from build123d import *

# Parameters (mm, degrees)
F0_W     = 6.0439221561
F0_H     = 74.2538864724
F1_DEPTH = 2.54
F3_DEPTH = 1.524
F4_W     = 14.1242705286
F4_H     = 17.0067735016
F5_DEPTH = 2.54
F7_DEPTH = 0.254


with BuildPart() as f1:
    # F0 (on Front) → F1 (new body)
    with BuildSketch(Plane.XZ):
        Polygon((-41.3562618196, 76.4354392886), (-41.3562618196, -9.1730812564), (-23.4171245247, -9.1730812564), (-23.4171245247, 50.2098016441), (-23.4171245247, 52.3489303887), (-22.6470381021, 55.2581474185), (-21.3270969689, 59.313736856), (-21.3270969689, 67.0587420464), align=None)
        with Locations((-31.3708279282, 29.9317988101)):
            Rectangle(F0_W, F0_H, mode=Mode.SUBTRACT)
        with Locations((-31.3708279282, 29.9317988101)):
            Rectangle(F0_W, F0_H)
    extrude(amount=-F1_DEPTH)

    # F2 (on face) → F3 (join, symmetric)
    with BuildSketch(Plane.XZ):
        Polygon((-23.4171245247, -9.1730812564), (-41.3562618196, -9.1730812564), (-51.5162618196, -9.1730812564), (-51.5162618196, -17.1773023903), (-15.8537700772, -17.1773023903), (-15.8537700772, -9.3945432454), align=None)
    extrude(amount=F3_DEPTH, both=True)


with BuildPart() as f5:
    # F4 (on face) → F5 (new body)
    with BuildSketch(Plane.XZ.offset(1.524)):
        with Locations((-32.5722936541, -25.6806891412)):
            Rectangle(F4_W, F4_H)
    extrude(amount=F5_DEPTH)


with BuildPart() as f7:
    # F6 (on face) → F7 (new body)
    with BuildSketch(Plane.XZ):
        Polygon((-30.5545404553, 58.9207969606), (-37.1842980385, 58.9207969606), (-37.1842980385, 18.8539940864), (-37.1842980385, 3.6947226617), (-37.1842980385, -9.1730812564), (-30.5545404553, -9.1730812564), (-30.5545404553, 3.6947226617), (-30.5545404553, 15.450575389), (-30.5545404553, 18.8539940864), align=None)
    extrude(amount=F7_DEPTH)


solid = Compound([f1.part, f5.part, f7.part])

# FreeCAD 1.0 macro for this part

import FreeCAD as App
import Part
import Sketcher
Q = App.Units.Quantity

doc = App.newDocument("Part")
body = doc.addObject("PartDesign::Body", "Body")

# Sketch on XZ plane
sketch1 = body.newObject("Sketcher::SketchObject", "Sketch")
sketch1.AttachmentSupport = (doc.getObject("XZ_Plane"), [""])
sketch1.MapMode = "FlatFace"
sketch1.addGeometry([
    Part.LineSegment(App.Vector(-41.4, 76.4, 0), App.Vector(-41.4, -9.2, 0)),  # 0
    Part.LineSegment(App.Vector(-41.4, -9.2, 0), App.Vector(-23.4, -9.2, 0)),  # 1
    Part.LineSegment(App.Vector(-23.4, -9.2, 0), App.Vector(-23.4, 52.3, 0)),  # 2
    Part.LineSegment(App.Vector(-23.4, 52.3, 0), App.Vector(-22.6, 55.3, 0)),  # 3
    Part.LineSegment(App.Vector(-22.6, 55.3, 0), App.Vector(-21.3, 59.3, 0)),  # 4
    Part.LineSegment(App.Vector(-21.3, 59.3, 0), App.Vector(-21.3, 67.1, 0)),  # 5
    Part.LineSegment(App.Vector(-21.3, 67.1, 0), App.Vector(-41.4, 76.4, 0)),  # 6
], False)
sketch1.addConstraint([
    Sketcher.Constraint("Coincident", 0, 2, 1, 1),
    Sketcher.Constraint("Coincident", 1, 2, 2, 1),
    Sketcher.Constraint("Coincident", 2, 2, 3, 1),
    Sketcher.Constraint("Coincident", 3, 2, 4, 1),
    Sketcher.Constraint("Coincident", 4, 2, 5, 1),
    Sketcher.Constraint("Coincident", 5, 2, 6, 1),
    Sketcher.Constraint("Coincident", 6, 2, 0, 1),
    Sketcher.Constraint("Vertical", 0),
    Sketcher.Constraint("Horizontal", 1),
    Sketcher.Constraint("Vertical", 2),
    Sketcher.Constraint("Vertical", 5),
    Sketcher.Constraint("DistanceY", 0, 2, 0, 1, Q("85.608521 mm")),
    Sketcher.Constraint("DistanceY", 2, 1, 2, 2, Q("61.522012 mm")),
    Sketcher.Constraint("Distance", 4, Q("4.26498 mm")),
    Sketcher.Constraint("DistanceX", 1, 1, 1, 2, Q("17.939137 mm")),
    Sketcher.Constraint("DistanceY", 5, 1, 5, 2, Q("7.745005 mm")),
    Sketcher.Constraint("DistanceX", 0, 2, -1, 1, Q("41.356262 mm")),
    Sketcher.Constraint("DistanceY", 0, 2, -1, 1, Q("9.173081 mm")),
    Sketcher.Constraint("DistanceX", 3, 2, -1, 1, Q("22.647038 mm")),
    Sketcher.Constraint("DistanceY", 1, 2, 3, 2, Q("64.431229 mm")),
    Sketcher.Constraint("DistanceX", 3, 2, 4, 2, Q("1.319941 mm")),
])
pad1 = body.newObject("PartDesign::Pad", "Pad")
pad1.Profile = sketch1
pad1.Length = Q("0.1 in")
pad1.Reversed = True

# Sketch on XZ plane
sketch2 = body.newObject("Sketcher::SketchObject", "Sketch001")
sketch2.AttachmentSupport = (doc.getObject("XZ_Plane"), [""])
sketch2.MapMode = "FlatFace"
sketch2.addGeometry([
    Part.LineSegment(App.Vector(-23, -9, 0), App.Vector(-52, -9, 0)),  # 0
    Part.LineSegment(App.Vector(-52, -9, 0), App.Vector(-52, -17, 0)),  # 1
    Part.LineSegment(App.Vector(-52, -17, 0), App.Vector(-16, -17, 0)),  # 2
    Part.LineSegment(App.Vector(-16, -17, 0), App.Vector(-16, -9, 0)),  # 3
    Part.LineSegment(App.Vector(-16, -9, 0), App.Vector(-23, -9, 0)),  # 4
], False)
sketch2.addConstraint([
    Sketcher.Constraint("Coincident", 0, 2, 1, 1),
    Sketcher.Constraint("Coincident", 1, 2, 2, 1),
    Sketcher.Constraint("Coincident", 2, 2, 3, 1),
    Sketcher.Constraint("Coincident", 3, 2, 4, 1),
    Sketcher.Constraint("Coincident", 4, 2, 0, 1),
    Sketcher.Constraint("Horizontal", 0),
    Sketcher.Constraint("Vertical", 1),
    Sketcher.Constraint("Horizontal", 2),
    Sketcher.Constraint("Vertical", 3),
    Sketcher.Constraint("DistanceX", 2, 1, 2, 2, Q("35.662492 mm")),
    Sketcher.Constraint("DistanceY", 1, 2, 1, 1, Q("8.004221 mm")),
    Sketcher.Constraint("DistanceY", 3, 1, 3, 2, Q("7.782759 mm")),
    Sketcher.Constraint("DistanceX", 0, 2, 0, 1, Q("28.099137 mm")),
    Sketcher.Constraint("DistanceX", 0, 2, -1, 1, Q("51.516262 mm")),
    Sketcher.Constraint("DistanceY", 0, 2, -1, 1, Q("9.173081 mm")),
])
pad2 = body.newObject("PartDesign::Pad", "Pad001")
pad2.Profile = sketch2
pad2.Length = Q("0.12 in")
pad2.Midplane = True
body2 = doc.addObject("PartDesign::Body", "Body001")

# Sketch on XZ plane
sketch3 = body2.newObject("Sketcher::SketchObject", "Sketch002")
sketch3.AttachmentSupport = (doc.getObject("XZ_Plane001"), [""])
sketch3.MapMode = "FlatFace"
sketch3.AttachmentOffset = App.Placement(App.Vector(0, 0, 0.06 * 25.4), App.Rotation())
sketch3.addGeometry([
    Part.LineSegment(App.Vector(-40, -17, 0), App.Vector(-40, -34, 0)),
    Part.LineSegment(App.Vector(-40, -34, 0), App.Vector(-26, -34, 0)),
    Part.LineSegment(App.Vector(-26, -34, 0), App.Vector(-26, -17, 0)),
    Part.LineSegment(App.Vector(-26, -17, 0), App.Vector(-40, -17, 0)),
], False)
sketch3.addConstraint([
    Sketcher.Constraint("Coincident", 0, 2, 1, 1),
    Sketcher.Constraint("Coincident", 1, 2, 2, 1),
    Sketcher.Constraint("Coincident", 2, 2, 3, 1),
    Sketcher.Constraint("Coincident", 3, 2, 0, 1),
    Sketcher.Constraint("Vertical", 0),
    Sketcher.Constraint("Horizontal", 1),
    Sketcher.Constraint("Vertical", 2),
    Sketcher.Constraint("Horizontal", 3),
    Sketcher.Constraint("DistanceX", 1, 1, 1, 2, Q("14.124271 mm")),
    Sketcher.Constraint("DistanceY", 0, 2, 0, 1, Q("17.006774 mm")),
    Sketcher.Constraint("DistanceX", 0, 2, -1, 1, Q("39.634429 mm")),
    Sketcher.Constraint("DistanceY", 0, 2, -1, 1, Q("34.184076 mm")),
])
pad3 = body2.newObject("PartDesign::Pad", "Pad002")
pad3.Profile = sketch3
pad3.Length = Q("0.1 in")
body3 = doc.addObject("PartDesign::Body", "Body002")

# Sketch on XZ plane
sketch4 = body3.newObject("Sketcher::SketchObject", "Sketch003")
sketch4.AttachmentSupport = (doc.getObject("XZ_Plane002"), [""])
sketch4.MapMode = "FlatFace"
sketch4.addGeometry([
    Part.LineSegment(App.Vector(-31, 59, 0), App.Vector(-37, 59, 0)),
    Part.LineSegment(App.Vector(-37, 59, 0), App.Vector(-37, -9, 0)),
    Part.LineSegment(App.Vector(-37, -9, 0), App.Vector(-31, -9, 0)),
    Part.LineSegment(App.Vector(-31, -9, 0), App.Vector(-31, 59, 0)),
], False)
sketch4.addConstraint([
    Sketcher.Constraint("Coincident", 0, 2, 1, 1),
    Sketcher.Constraint("Coincident", 1, 2, 2, 1),
    Sketcher.Constraint("Coincident", 2, 2, 3, 1),
    Sketcher.Constraint("Coincident", 3, 2, 0, 1),
    Sketcher.Constraint("Horizontal", 0),
    Sketcher.Constraint("Vertical", 1),
    Sketcher.Constraint("Horizontal", 2),
    Sketcher.Constraint("Vertical", 3),
    Sketcher.Constraint("DistanceY", 1, 2, 1, 1, Q("68.093878 mm")),
    Sketcher.Constraint("DistanceX", 0, 2, -1, 1, Q("37.184298 mm")),
    Sketcher.Constraint("DistanceX", 0, 2, 0, 1, Q("6.629758 mm")),
    Sketcher.Constraint("DistanceY", 1, 2, -1, 1, Q("9.173081 mm")),
])
pad4 = body3.newObject("PartDesign::Pad", "Pad003")
pad4.Profile = sketch4
pad4.Length = Q("0.01 in")

doc.recompute()
